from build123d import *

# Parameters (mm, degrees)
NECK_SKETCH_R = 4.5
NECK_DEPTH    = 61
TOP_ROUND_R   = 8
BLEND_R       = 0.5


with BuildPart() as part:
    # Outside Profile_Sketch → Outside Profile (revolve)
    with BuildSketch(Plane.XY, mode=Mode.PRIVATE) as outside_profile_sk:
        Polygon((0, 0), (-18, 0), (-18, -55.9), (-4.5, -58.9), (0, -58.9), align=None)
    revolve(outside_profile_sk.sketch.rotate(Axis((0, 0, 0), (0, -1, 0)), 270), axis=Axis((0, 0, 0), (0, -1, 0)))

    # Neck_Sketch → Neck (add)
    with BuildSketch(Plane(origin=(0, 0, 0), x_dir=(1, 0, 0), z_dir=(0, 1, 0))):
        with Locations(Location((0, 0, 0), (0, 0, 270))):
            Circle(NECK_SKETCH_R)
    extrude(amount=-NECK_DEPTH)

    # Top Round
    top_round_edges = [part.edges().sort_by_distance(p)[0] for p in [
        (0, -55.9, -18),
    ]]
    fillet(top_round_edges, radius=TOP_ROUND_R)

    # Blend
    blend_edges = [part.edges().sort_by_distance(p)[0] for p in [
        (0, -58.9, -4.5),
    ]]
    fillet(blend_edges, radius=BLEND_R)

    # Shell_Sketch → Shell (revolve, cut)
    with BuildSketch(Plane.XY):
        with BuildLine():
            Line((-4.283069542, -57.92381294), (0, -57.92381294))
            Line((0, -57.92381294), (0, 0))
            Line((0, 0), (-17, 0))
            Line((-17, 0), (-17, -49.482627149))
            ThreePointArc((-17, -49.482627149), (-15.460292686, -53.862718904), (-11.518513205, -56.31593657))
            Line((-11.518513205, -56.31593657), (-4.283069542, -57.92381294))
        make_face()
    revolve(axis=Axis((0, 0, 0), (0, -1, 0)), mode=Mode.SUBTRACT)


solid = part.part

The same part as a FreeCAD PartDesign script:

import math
import FreeCAD as App
import Part
import Sketcher
from FreeCAD import Vector


def edges_at(feature, points):
    """Names of the edges that pass closest to the given points."""
    edges = feature.Shape.Edges
    near = lambda p: min(range(len(edges)), key=lambda i: edges[i].distToShape(Part.Vertex(*p))[0])
    return sorted({f"Edge{near(p) + 1}" for p in points})


def add_polygon(sketch, points):
    """Adds a closed chain of lines whose ends are joined by coincident constraints."""
    first, n = sketch.GeometryCount, len(points)
    for a, b in zip(points, points[1:] + points[:1]):
        sketch.addGeometry(Part.LineSegment(App.Vector(*a, 0), App.Vector(*b, 0)), False)
    for i in range(n):
        sketch.addConstraint(Sketcher.Constraint("Coincident", first + i, 2, first + (i + 1) % n, 1))

doc = App.newDocument("Part")
body = doc.addObject("PartDesign::Body", "Body")

sketch1 = doc.addObject("Sketcher::SketchObject", "Sketch")
body.addObject(sketch1)
sketch1.AttachmentSupport = (doc.XY_Plane, [""])
sketch1.MapMode = "FlatFace"
add_polygon(sketch1, [(0, 0), (-18, 0), (-18, -55.9), (-4.5, -58.9), (0, -58.9)])
sketch1.addConstraint([
    Sketcher.Constraint("Horizontal", 0),
    Sketcher.Constraint("Vertical", 1),
    Sketcher.Constraint("Horizontal", 3),
    Sketcher.Constraint("Vertical", 4),
    Sketcher.Constraint("Coincident", 4, 2, -1, 1),
    Sketcher.Constraint("DistanceX", 0, 2, 0, 1, 18.0),
    Sketcher.Constraint("DistanceX", 3, 1, 3, 2, 4.5),
    Sketcher.Constraint("DistanceY", 1, 2, 1, 1, 55.9),
    Sketcher.Constraint("DistanceY", 4, 1, 4, 2, 58.9),
])
revolution = doc.addObject("PartDesign::Revolution", "Revolution")
body.addObject(revolution)
revolution.Profile = sketch1
revolution.ReferenceAxis = (sketch1, ["V_Axis"])
revolution.Angle = 360

sketch2 = doc.addObject("Sketcher::SketchObject", "Sketch001")
body.addObject(sketch2)
sketch2.AttachmentSupport = (doc.XZ_Plane, [""])
sketch2.MapMode = "FlatFace"
sketch2.addGeometry(Part.Circle(Vector(0, 0, 0), Vector(0, 0, 1), 4.5), False)
sketch2.addConstraint([
    Sketcher.Constraint("Coincident", 0, 3, -1, 1),
    Sketcher.Constraint("Diameter", 0, 9.0),
])
pad1 = doc.addObject("PartDesign::Pad", "Pad")
body.addObject(pad1)
pad1.Profile = sketch2
pad1.Length = 61
doc.recompute()

fillet = doc.addObject("PartDesign::Fillet", "Fillet")
body.addObject(fillet)
fillet.Base = (pad1, edges_at(pad1, [(0, -55.9, -18)]))
fillet.Radius = 8
doc.recompute()

fillet2 = doc.addObject("PartDesign::Fillet", "Fillet001")
body.addObject(fillet2)
fillet2.Base = (fillet, edges_at(fillet, [(0, -58.9, -4.5)]))
fillet2.Radius = 0.5

sketch3 = doc.addObject("Sketcher::SketchObject", "Sketch002")
body.addObject(sketch3)
sketch3.AttachmentSupport = (doc.XY_Plane, [""])
sketch3.MapMode = "FlatFace"
sketch3.addGeometry([
    Part.LineSegment(Vector(-4.28307, -57.923813, 0), Vector(0, -57.923813, 0)),
    Part.LineSegment(Vector(0, -57.923813, 0), Vector(0, 0, 0)),
    Part.LineSegment(Vector(0, 0, 0), Vector(-17, 0, 0)),
    Part.LineSegment(Vector(-17, 0, 0), Vector(-17, -49.482627, 0)),
    Part.ArcOfCircle(Part.Circle(Vector(-10, -49.482627, 0), Vector(0, 0, 1), 7), math.radians(180), math.radians(257.471192)),
    Part.LineSegment(Vector(-11.518513, -56.315937, 0), Vector(-4.28307, -57.923813, 0)),
], False)
sketch3.addConstraint([
    Sketcher.Constraint("Coincident", 0, 2, 1, 1),
    Sketcher.Constraint("Coincident", 1, 2, 2, 1),
    Sketcher.Constraint("Coincident", 2, 2, 3, 1),
    Sketcher.Constraint("Tangent", 3, 2, 4, 1),
    Sketcher.Constraint("Tangent", 4, 2, 5, 1),
    Sketcher.Constraint("Coincident", 5, 2, 0, 1),
    Sketcher.Constraint("Horizontal", 0),
    Sketcher.Constraint("Vertical", 1),
    Sketcher.Constraint("Horizontal", 2),
    Sketcher.Constraint("Vertical", 3),
    Sketcher.Constraint("Coincident", 1, 2, -1, 1),
    Sketcher.Constraint("Radius", 4, 7.0),
    Sketcher.Constraint("DistanceX", 2, 2, 2, 1, 17.0),
    Sketcher.Constraint("DistanceX", 0, 1, 0, 2, 4.28307),
    Sketcher.Constraint("DistanceY", 1, 1, 1, 2, 57.923813),
    Sketcher.Constraint("DistanceY", 3, 2, 3, 1, 49.482627),
])
groove = doc.addObject("PartDesign::Groove", "Groove")
body.addObject(groove)
groove.Profile = sketch3
groove.ReferenceAxis = (sketch3, ["V_Axis"])
groove.Angle = 360

doc.recompute()
